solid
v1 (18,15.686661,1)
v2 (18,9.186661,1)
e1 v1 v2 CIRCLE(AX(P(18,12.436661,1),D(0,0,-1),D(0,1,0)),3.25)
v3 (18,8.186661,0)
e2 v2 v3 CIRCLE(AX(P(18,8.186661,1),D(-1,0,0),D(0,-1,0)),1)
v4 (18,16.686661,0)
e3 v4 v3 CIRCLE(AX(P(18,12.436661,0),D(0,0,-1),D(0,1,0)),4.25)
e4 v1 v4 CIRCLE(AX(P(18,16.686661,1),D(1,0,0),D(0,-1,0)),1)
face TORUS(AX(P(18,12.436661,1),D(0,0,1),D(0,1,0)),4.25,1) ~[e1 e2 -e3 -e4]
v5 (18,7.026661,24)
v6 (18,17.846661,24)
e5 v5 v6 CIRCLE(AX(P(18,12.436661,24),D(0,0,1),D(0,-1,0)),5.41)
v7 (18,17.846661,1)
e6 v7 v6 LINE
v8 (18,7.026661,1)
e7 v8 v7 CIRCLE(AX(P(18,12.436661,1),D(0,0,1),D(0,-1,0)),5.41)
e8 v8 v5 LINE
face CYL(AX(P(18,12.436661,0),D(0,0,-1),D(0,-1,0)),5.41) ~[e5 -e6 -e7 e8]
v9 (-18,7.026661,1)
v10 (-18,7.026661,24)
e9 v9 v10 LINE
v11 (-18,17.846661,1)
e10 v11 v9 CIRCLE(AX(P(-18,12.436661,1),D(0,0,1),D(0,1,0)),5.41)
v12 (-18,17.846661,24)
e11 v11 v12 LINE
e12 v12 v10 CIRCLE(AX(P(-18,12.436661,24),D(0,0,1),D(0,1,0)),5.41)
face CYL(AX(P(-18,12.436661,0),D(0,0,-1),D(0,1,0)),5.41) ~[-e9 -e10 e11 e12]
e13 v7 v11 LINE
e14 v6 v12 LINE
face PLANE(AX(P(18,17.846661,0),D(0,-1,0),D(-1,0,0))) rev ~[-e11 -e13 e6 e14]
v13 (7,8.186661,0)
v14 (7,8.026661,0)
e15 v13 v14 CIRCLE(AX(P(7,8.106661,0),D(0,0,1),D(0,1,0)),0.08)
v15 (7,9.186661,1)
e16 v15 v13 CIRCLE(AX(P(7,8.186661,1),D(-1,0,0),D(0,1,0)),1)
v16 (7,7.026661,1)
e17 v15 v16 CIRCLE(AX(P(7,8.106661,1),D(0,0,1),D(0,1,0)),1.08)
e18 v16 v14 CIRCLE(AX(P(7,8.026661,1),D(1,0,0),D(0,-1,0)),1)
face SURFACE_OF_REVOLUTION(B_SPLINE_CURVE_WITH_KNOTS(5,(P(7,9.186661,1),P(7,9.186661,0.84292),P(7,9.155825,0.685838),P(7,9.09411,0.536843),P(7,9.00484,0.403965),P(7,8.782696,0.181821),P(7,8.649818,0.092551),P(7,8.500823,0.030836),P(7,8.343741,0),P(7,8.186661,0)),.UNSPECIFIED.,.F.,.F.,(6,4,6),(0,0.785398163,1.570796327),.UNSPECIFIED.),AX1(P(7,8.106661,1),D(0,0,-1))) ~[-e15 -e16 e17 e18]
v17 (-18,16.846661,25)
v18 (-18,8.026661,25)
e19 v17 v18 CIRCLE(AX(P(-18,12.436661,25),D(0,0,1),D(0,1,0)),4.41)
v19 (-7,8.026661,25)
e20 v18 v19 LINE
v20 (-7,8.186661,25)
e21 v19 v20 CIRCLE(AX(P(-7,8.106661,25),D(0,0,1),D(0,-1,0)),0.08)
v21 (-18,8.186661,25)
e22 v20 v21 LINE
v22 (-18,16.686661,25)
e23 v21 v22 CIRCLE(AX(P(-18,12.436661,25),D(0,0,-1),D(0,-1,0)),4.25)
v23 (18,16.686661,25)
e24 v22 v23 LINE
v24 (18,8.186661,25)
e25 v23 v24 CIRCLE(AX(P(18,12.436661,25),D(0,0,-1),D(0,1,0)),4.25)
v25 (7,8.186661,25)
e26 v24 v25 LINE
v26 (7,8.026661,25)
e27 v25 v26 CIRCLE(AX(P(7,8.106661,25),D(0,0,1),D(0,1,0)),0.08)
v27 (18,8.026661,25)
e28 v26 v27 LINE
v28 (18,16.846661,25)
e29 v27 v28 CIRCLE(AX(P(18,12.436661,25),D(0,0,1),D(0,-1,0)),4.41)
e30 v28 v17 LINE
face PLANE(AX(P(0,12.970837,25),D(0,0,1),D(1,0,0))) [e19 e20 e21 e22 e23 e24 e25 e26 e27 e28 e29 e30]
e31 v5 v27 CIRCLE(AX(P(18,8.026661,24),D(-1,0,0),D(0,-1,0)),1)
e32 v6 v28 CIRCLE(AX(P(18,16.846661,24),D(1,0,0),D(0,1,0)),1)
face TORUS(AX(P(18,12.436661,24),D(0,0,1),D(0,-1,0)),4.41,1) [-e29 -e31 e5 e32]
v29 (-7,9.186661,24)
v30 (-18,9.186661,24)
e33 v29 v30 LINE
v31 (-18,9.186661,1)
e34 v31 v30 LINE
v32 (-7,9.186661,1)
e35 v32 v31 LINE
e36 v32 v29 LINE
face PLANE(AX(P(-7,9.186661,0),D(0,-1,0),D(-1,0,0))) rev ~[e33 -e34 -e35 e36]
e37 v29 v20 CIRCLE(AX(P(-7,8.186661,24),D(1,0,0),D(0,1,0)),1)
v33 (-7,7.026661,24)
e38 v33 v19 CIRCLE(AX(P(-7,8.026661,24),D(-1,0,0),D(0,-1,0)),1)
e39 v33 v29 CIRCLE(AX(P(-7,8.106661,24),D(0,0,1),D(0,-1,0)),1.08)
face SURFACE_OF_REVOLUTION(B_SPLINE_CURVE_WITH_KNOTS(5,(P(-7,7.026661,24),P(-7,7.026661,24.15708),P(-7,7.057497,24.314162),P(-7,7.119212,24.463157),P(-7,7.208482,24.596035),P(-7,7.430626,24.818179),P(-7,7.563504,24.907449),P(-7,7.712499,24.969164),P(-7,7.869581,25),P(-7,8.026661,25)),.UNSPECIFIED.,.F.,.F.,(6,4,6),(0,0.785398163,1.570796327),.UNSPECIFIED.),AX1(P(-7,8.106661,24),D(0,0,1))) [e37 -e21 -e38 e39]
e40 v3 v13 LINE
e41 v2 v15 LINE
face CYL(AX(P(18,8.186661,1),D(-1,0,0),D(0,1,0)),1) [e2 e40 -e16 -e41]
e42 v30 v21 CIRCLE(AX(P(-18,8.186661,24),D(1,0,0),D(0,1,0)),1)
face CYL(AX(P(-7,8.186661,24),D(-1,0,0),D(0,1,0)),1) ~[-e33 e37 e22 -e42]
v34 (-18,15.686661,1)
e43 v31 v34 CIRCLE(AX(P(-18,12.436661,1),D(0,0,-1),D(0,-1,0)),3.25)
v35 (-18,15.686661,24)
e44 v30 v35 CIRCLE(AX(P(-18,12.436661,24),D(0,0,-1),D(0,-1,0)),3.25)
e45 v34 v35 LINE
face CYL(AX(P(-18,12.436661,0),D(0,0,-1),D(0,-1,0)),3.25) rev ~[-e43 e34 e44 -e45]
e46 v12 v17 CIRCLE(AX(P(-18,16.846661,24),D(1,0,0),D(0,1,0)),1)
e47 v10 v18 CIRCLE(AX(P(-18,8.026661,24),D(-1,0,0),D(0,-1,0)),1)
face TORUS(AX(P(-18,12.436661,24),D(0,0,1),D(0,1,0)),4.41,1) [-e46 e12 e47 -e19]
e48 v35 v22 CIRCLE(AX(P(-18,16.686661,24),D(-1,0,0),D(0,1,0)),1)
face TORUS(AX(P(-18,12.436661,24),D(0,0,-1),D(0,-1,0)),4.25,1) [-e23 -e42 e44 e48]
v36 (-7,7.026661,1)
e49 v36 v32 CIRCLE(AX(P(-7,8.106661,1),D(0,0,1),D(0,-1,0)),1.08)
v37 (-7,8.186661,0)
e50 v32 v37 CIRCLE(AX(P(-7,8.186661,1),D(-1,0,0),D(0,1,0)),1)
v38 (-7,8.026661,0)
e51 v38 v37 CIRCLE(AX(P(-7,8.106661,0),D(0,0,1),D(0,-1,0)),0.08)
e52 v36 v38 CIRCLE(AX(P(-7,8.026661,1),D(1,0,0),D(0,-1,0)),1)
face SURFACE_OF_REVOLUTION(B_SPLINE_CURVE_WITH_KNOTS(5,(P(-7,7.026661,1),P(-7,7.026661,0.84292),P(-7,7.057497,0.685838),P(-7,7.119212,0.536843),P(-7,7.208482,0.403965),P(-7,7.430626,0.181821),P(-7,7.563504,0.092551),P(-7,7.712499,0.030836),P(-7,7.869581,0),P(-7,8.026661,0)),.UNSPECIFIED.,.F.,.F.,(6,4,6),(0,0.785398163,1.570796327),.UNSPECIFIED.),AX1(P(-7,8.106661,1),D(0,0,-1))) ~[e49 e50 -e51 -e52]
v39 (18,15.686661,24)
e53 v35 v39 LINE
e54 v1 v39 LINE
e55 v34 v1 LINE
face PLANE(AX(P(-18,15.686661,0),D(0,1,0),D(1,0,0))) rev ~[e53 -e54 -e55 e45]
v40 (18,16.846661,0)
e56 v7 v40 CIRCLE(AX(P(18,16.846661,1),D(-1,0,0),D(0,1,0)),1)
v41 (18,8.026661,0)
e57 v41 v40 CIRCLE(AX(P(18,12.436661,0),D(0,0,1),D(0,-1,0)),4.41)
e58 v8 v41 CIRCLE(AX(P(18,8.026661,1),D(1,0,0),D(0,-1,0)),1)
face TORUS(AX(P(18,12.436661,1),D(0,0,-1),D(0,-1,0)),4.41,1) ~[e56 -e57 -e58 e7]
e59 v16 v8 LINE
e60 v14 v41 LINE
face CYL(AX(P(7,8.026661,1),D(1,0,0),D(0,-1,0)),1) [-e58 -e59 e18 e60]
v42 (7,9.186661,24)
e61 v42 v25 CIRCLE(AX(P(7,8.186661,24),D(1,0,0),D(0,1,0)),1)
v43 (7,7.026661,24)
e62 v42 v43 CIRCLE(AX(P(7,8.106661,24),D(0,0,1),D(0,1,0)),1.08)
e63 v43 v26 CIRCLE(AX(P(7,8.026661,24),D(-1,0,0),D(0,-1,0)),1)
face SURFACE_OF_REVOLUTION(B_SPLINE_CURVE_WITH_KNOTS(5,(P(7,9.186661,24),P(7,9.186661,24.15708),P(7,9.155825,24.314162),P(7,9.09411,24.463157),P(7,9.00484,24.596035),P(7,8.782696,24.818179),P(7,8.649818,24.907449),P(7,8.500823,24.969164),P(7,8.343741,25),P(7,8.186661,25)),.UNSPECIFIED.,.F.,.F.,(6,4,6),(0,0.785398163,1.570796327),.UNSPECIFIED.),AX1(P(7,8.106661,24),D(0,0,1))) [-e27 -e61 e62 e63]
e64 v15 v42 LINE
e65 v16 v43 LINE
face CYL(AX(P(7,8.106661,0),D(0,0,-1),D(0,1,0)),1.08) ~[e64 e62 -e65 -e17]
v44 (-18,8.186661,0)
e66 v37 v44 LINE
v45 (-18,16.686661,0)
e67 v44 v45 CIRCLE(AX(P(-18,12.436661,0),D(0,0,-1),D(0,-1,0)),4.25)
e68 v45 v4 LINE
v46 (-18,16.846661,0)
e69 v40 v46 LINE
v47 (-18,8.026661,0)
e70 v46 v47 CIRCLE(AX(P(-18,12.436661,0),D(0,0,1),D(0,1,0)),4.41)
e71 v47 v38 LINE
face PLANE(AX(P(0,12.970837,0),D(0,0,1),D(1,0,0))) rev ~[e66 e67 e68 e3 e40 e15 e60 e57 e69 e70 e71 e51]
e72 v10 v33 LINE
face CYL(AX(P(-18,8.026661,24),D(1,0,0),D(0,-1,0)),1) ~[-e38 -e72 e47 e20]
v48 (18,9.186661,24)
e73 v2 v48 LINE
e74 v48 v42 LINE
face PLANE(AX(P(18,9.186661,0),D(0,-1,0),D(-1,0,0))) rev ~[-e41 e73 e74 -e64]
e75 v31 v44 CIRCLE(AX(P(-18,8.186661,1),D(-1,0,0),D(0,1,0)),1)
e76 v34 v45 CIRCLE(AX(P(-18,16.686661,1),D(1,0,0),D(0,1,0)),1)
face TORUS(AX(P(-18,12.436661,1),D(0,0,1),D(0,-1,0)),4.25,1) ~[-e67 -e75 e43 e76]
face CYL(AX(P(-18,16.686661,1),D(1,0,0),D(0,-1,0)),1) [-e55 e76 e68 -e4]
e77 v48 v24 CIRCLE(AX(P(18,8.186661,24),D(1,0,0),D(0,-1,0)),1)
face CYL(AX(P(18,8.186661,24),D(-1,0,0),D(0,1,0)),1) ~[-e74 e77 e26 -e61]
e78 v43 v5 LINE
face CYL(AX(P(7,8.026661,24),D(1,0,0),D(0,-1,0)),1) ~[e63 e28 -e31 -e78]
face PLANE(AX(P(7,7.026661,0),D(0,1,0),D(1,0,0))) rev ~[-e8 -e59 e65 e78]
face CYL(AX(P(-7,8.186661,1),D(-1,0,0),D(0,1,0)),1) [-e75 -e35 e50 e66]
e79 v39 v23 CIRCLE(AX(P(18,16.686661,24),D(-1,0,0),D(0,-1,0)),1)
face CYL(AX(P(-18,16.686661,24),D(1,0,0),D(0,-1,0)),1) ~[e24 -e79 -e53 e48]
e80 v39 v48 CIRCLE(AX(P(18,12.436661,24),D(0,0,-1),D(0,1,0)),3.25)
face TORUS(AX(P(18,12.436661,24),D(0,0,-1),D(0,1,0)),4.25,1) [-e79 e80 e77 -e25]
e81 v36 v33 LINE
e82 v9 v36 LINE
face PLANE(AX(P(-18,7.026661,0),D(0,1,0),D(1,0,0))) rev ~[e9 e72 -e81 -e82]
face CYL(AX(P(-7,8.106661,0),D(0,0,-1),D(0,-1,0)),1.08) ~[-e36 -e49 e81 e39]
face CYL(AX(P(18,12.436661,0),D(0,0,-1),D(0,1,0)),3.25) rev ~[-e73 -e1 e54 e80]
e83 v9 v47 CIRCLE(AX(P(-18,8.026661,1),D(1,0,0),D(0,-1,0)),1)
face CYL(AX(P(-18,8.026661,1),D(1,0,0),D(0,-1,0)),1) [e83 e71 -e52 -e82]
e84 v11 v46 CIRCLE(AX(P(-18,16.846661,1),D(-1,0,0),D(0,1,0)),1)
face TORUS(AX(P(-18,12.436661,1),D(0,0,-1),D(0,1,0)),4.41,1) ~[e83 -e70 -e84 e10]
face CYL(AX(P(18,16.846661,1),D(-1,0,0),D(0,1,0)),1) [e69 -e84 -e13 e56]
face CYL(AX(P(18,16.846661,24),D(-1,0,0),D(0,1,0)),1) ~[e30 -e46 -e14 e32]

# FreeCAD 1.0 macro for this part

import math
import FreeCAD as App
import Part
import Sketcher
from FreeCAD import Vector
Q = App.Units.Quantity


def edges_at(feature, points):
    """Names of the edges that pass closest to the given points."""
    edges = feature.Shape.Edges
    near = lambda p: min(range(len(edges)), key=lambda i: edges[i].distToShape(Part.Vertex(*p))[0])
    return sorted({f"Edge{near(p) + 1}" for p in points})

doc = App.newDocument("Part")
body = doc.addObject("PartDesign::Body", "Body")

sketch1 = doc.addObject("Sketcher::SketchObject", "Sketch")
body.addObject(sketch1)
sketch1.AttachmentSupport = (doc.XY_Plane, [""])
sketch1.MapMode = "FlatFace"
sketch1.addGeometry(Part.ArcOfCircle(Part.Circle(Vector(-18, 12.4, 0), Vector(0, 0, 1), 3.2), math.radians(90), math.radians(270)), False)
sketch1.addGeometry(Part.LineSegment(Vector(-18, 15.7, 0), Vector(18, 15.7, 0)), False)
sketch1.addGeometry(Part.ArcOfCircle(Part.Circle(Vector(18, 12.4, 0), Vector(0, 0, 1), 3.2), math.radians(-90), math.radians(90)), False)
sketch1.addGeometry(Part.LineSegment(Vector(18, 9.2, 0), Vector(7, 9.2, 0)), False)
sketch1.addGeometry(Part.ArcOfCircle(Part.Circle(Vector(7, 8.1, 0), Vector(0, 0, 1), 1.1), math.radians(90), math.radians(270)), False)
sketch1.addGeometry(Part.LineSegment(Vector(7, 7, 0), Vector(18, 7, 0)), False)
sketch1.addGeometry(Part.ArcOfCircle(Part.Circle(Vector(18, 12.4, 0), Vector(0, 0, 1), 5.4), math.radians(-90), math.radians(90)), False)
sketch1.addGeometry(Part.LineSegment(Vector(18, 17.8, 0), Vector(-18, 17.8, 0)), False)
sketch1.addGeometry(Part.ArcOfCircle(Part.Circle(Vector(-18, 12.4, 0), Vector(0, 0, 1), 5.4), math.radians(90), math.radians(270)), False)
sketch1.addGeometry(Part.LineSegment(Vector(-18, 7, 0), Vector(-7, 7, 0)), False)
sketch1.addGeometry(Part.ArcOfCircle(Part.Circle(Vector(-7, 8.1, 0), Vector(0, 0, 1), 1.1), math.radians(-90), math.radians(90)), False)
sketch1.addGeometry(Part.LineSegment(Vector(-7, 9.2, 0), Vector(-18, 9.2, 0)), False)
sketch1.addConstraint(Sketcher.Constraint("Tangent", 0, 1, 1, 1))
sketch1.addConstraint(Sketcher.Constraint("Tangent", 1, 2, 2, 2))
sketch1.addConstraint(Sketcher.Constraint("Tangent", 2, 1, 3, 1))
sketch1.addConstraint(Sketcher.Constraint("Tangent", 3, 2, 4, 1))
sketch1.addConstraint(Sketcher.Constraint("Tangent", 4, 2, 5, 1))
sketch1.addConstraint(Sketcher.Constraint("Tangent", 5, 2, 6, 1))
sketch1.addConstraint(Sketcher.Constraint("Tangent", 6, 2, 7, 1))
sketch1.addConstraint(Sketcher.Constraint("Tangent", 7, 2, 8, 1))
sketch1.addConstraint(Sketcher.Constraint("Tangent", 8, 2, 9, 1))
sketch1.addConstraint(Sketcher.Constraint("Tangent", 9, 2, 10, 1))
sketch1.addConstraint(Sketcher.Constraint("Tangent", 10, 2, 11, 1))
sketch1.addConstraint(Sketcher.Constraint("Tangent", 11, 2, 0, 2))
sketch1.addConstraint(Sketcher.Constraint("Horizontal", 1))
sketch1.addConstraint(Sketcher.Constraint("Horizontal", 3))
sketch1.addConstraint(Sketcher.Constraint("Horizontal", 5))
sketch1.addConstraint(Sketcher.Constraint("Horizontal", 7))
sketch1.addConstraint(Sketcher.Constraint("Horizontal", 9))
sketch1.addConstraint(Sketcher.Constraint("Horizontal", 11))
sketch1.addConstraint(Sketcher.Constraint("Coincident", 6, 3, 2, 3))
sketch1.addConstraint(Sketcher.Constraint("Coincident", 8, 3, 0, 3))
sketch1.addConstraint(Sketcher.Constraint("Equal", 0, 2))
sketch1.addConstraint(Sketcher.Constraint("Equal", 5, 9))
sketch1.addConstraint(Sketcher.Constraint("DistanceX", 1, 1, 1, 2, Q("36 mm")))
sketch1.addConstraint(Sketcher.Constraint("DistanceX", 3, 2, 3, 1, Q("11 mm")))
sketch1.addConstraint(Sketcher.Constraint("Radius", 0, Q("3.25 mm")))
sketch1.addConstraint(Sketcher.Constraint("Radius", 4, Q("1.08 mm")))
sketch1.addConstraint(Sketcher.Constraint("DistanceX", 0, 3, -1, 1, Q("18 mm")))
sketch1.addConstraint(Sketcher.Constraint("DistanceY", -1, 1, 0, 3, Q("12.436661 mm")))
pad1 = doc.addObject("PartDesign::Pad", "Pad")
body.addObject(pad1)
pad1.Profile = sketch1
pad1.Length = 25
doc.recompute()

fillet = doc.addObject("PartDesign::Fillet", "Fillet")
body.addObject(fillet)
fillet.Base = (pad1, edges_at(pad1, [
    (0, 17.847, 25),
    (0, 15.687, 25),
    (21.25, 12.437, 25),
    (23.41, 12.437, 25),
    (12.5, 9.187, 25),
    (12.5, 7.027, 25),
    (5.92, 8.107, 25),
    (-5.92, 8.107, 25),
    (-21.25, 12.437, 25),
    (-12.5, 9.187, 25),
    (-12.5, 7.027, 25),
    (-23.41, 12.437, 25),
    (12.5, 7.027, 0),
    (23.41, 12.437, 0),
    (0, 17.847, 0),
    (0, 15.687, 0),
    (21.25, 12.437, 0),
    (-12.5, 9.187, 0),
    (-5.92, 8.107, 0),
    (5.92, 8.107, 0),
    (12.5, 9.187, 0),
    (-23.41, 12.437, 0),
    (-21.25, 12.437, 0),
]))
fillet.Radius = 1

doc.recompute()
